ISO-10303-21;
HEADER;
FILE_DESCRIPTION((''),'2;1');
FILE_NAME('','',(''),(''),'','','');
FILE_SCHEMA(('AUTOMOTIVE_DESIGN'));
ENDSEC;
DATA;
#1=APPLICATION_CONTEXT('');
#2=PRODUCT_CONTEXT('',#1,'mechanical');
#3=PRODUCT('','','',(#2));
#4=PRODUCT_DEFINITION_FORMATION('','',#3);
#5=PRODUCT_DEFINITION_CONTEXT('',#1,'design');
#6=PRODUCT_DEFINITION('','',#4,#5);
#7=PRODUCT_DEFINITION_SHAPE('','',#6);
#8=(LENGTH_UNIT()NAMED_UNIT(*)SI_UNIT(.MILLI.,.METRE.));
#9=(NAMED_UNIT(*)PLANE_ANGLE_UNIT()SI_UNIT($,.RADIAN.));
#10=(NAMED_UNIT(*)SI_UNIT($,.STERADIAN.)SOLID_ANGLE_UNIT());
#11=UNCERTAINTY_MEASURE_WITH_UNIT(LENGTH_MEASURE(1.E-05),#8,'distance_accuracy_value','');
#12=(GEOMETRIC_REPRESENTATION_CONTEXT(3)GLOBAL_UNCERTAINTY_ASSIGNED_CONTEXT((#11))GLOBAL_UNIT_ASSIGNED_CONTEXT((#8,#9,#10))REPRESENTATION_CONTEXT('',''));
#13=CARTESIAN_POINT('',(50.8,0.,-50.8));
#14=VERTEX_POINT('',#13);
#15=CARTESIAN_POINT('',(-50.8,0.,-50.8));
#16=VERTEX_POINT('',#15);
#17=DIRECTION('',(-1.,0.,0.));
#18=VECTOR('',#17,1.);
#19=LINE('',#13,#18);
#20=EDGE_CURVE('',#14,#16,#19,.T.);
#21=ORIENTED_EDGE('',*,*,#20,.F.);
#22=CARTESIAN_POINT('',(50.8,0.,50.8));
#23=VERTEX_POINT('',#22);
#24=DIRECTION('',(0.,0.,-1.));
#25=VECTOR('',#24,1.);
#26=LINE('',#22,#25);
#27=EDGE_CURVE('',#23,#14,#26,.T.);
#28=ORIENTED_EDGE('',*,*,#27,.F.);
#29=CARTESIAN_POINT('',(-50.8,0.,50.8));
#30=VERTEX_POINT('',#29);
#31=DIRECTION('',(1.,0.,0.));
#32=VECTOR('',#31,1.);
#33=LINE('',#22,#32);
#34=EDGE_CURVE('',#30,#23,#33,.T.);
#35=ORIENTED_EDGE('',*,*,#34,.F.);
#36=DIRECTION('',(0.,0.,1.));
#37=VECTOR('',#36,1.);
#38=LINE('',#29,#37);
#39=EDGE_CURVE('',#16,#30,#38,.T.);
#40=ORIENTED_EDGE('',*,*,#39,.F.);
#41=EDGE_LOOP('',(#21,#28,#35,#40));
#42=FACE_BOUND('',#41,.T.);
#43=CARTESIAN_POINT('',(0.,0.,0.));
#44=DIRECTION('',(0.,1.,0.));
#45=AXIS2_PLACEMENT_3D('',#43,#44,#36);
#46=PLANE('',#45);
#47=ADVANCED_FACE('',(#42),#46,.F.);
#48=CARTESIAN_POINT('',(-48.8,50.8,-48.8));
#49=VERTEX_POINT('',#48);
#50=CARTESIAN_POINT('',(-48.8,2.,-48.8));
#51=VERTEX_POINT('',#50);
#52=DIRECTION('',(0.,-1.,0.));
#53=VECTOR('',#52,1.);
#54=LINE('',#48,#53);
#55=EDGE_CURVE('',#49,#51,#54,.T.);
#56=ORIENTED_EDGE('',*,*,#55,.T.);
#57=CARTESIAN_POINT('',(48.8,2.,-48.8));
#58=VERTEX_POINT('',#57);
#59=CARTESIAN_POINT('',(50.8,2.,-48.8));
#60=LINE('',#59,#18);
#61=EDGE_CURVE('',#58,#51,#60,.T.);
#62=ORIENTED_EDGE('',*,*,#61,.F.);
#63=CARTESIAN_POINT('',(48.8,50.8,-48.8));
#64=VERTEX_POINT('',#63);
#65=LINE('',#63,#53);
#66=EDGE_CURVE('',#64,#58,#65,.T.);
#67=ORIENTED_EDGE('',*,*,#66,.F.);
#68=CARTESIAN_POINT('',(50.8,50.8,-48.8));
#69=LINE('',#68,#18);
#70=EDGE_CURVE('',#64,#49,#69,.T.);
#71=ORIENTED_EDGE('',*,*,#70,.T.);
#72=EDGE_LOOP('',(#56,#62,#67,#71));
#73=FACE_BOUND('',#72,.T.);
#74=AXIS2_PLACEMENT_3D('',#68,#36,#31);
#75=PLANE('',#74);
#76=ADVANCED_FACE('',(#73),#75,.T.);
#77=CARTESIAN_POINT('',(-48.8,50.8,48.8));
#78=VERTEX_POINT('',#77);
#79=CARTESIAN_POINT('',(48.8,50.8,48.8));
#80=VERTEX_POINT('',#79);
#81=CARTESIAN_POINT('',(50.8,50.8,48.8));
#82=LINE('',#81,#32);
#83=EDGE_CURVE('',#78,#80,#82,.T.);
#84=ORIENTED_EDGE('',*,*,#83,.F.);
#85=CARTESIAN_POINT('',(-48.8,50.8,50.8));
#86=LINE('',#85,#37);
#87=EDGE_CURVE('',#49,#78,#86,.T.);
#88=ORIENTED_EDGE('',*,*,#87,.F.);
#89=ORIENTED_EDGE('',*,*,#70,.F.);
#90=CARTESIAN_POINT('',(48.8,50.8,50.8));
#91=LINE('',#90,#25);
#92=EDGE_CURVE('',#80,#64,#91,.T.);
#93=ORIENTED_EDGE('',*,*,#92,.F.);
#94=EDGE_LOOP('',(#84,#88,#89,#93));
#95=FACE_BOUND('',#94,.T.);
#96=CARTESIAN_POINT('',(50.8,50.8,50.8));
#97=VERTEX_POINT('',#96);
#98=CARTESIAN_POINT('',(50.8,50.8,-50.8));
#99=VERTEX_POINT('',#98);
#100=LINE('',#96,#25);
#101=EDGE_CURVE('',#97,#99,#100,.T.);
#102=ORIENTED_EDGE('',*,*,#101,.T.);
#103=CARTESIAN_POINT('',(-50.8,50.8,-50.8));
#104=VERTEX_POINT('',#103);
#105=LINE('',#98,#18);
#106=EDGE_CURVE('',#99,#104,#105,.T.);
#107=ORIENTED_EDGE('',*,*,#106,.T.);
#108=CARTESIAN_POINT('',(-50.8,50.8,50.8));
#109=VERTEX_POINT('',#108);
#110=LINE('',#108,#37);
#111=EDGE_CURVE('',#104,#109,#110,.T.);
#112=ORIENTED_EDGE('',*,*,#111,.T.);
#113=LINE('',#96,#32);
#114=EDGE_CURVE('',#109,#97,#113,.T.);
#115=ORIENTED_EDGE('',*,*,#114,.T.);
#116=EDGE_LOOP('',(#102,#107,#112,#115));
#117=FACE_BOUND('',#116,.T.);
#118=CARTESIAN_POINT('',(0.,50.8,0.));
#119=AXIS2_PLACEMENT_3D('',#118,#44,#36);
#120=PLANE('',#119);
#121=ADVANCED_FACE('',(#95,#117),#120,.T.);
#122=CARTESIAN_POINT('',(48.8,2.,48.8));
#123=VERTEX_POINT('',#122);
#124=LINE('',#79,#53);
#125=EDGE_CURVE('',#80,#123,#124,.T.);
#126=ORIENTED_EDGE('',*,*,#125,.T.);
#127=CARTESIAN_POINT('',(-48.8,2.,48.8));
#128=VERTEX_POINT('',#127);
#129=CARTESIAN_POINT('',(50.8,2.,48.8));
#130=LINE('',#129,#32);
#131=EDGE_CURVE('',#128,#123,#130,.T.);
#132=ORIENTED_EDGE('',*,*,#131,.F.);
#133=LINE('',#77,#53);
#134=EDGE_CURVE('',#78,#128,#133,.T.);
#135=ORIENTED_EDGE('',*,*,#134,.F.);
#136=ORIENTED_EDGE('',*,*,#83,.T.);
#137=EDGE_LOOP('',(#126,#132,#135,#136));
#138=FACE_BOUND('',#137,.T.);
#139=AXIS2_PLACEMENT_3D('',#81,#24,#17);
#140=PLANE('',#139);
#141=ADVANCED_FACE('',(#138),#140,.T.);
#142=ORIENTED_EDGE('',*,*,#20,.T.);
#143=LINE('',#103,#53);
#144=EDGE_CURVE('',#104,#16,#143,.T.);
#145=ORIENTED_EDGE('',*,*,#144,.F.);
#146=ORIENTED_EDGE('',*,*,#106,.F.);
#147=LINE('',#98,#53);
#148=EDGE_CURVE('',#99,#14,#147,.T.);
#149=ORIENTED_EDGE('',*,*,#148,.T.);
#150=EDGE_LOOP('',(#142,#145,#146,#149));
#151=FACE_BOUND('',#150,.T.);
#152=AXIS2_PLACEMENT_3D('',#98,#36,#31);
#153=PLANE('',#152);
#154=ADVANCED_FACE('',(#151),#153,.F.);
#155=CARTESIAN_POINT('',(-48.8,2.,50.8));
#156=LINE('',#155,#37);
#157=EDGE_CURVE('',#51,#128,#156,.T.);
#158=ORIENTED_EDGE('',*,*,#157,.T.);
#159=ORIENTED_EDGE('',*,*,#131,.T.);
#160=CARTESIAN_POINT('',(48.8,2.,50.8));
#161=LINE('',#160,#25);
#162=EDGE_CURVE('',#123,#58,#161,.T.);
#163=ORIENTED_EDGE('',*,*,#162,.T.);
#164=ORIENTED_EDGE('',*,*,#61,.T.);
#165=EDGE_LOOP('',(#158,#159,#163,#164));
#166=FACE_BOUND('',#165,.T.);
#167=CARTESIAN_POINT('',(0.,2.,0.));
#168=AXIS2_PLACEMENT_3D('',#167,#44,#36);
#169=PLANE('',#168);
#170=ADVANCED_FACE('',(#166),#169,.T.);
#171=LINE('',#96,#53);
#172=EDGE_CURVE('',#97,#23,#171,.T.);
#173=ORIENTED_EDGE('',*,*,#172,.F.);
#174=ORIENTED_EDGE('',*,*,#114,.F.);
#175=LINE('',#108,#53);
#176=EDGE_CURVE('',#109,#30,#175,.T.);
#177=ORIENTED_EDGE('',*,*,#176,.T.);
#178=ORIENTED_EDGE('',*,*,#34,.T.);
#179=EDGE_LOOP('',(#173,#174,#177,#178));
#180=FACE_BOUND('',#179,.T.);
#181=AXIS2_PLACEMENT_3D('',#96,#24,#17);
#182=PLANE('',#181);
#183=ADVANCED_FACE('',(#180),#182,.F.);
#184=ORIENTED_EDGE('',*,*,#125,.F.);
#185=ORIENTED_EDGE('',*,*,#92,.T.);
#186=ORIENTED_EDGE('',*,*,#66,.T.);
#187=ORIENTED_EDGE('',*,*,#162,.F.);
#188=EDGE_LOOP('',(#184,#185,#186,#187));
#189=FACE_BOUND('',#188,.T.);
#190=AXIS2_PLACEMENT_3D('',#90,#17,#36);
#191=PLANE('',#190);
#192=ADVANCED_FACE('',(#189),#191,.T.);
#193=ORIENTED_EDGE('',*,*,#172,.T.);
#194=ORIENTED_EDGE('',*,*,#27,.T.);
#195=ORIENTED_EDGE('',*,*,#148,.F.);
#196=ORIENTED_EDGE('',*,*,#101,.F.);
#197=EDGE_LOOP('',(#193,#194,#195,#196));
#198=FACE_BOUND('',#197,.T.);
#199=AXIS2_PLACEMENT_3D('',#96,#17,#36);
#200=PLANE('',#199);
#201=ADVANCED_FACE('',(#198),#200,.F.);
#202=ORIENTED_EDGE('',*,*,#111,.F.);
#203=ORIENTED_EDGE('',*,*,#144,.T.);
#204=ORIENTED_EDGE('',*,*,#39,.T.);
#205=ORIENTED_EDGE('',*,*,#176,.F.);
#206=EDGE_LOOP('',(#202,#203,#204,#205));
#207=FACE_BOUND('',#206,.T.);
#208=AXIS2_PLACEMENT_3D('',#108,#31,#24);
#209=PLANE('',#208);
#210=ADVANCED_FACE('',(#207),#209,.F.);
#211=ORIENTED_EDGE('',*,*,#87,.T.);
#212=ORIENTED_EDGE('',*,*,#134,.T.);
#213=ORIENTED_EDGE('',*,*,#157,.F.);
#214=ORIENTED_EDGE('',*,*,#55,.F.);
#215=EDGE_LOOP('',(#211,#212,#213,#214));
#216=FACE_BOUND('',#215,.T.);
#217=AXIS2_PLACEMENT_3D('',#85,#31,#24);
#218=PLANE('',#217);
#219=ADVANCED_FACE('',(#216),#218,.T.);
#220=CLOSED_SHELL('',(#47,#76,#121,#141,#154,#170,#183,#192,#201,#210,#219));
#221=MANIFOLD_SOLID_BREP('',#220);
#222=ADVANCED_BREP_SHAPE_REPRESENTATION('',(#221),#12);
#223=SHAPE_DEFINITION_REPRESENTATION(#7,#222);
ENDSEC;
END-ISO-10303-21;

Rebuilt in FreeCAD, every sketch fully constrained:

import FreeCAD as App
import Part
import Sketcher
Q = App.Units.Quantity


def faces_at(feature, points):
    """Names of the faces that lie closest to the given points."""
    faces = feature.Shape.Faces
    near = lambda p: min(range(len(faces)), key=lambda i: faces[i].distToShape(Part.Vertex(*p))[0])
    return sorted({f"Face{near(p) + 1}" for p in points})

doc = App.newDocument("Part")
body = doc.addObject("PartDesign::Body", "Body")

# Sketch on XZ plane
sketch1 = body.newObject("Sketcher::SketchObject", "Sketch")
sketch1.AttachmentSupport = (doc.getObject("XZ_Plane"), [""])
sketch1.MapMode = "FlatFace"
sketch1.addGeometry([
    Part.LineSegment(App.Vector(-50.8, -50.8, 0), App.Vector(-50.8, 50.8, 0)),
    Part.LineSegment(App.Vector(-50.8, 50.8, 0), App.Vector(50.8, 50.8, 0)),
    Part.LineSegment(App.Vector(50.8, 50.8, 0), App.Vector(50.8, -50.8, 0)),
    Part.LineSegment(App.Vector(50.8, -50.8, 0), App.Vector(-50.8, -50.8, 0)),
], False)
sketch1.addConstraint([
    Sketcher.Constraint("Coincident", 0, 2, 1, 1),
    Sketcher.Constraint("Coincident", 1, 2, 2, 1),
    Sketcher.Constraint("Coincident", 2, 2, 3, 1),
    Sketcher.Constraint("Coincident", 3, 2, 0, 1),
    Sketcher.Constraint("Vertical", 0),
    Sketcher.Constraint("Horizontal", 1),
    Sketcher.Constraint("Vertical", 2),
    Sketcher.Constraint("Horizontal", 3),
    Sketcher.Constraint("Symmetric", 0, 2, 2, 2, -1, 1),
    Sketcher.Constraint("Equal", 3, 0),
    Sketcher.Constraint("DistanceX", 1, 1, 1, 2, Q("4 in")),
])
pad1 = body.newObject("PartDesign::Pad", "Pad")
pad1.Profile = sketch1
pad1.Length = Q("2 in")
pad1.Reversed = True
doc.recompute()

thickness = body.newObject("PartDesign::Thickness", "Thickness")
thickness.Base = (pad1, faces_at(pad1, [(0, 50.8, 0)]))
thickness.Value = 2
thickness.Reversed = True
thickness.Join = "Intersection"

doc.recompute()
